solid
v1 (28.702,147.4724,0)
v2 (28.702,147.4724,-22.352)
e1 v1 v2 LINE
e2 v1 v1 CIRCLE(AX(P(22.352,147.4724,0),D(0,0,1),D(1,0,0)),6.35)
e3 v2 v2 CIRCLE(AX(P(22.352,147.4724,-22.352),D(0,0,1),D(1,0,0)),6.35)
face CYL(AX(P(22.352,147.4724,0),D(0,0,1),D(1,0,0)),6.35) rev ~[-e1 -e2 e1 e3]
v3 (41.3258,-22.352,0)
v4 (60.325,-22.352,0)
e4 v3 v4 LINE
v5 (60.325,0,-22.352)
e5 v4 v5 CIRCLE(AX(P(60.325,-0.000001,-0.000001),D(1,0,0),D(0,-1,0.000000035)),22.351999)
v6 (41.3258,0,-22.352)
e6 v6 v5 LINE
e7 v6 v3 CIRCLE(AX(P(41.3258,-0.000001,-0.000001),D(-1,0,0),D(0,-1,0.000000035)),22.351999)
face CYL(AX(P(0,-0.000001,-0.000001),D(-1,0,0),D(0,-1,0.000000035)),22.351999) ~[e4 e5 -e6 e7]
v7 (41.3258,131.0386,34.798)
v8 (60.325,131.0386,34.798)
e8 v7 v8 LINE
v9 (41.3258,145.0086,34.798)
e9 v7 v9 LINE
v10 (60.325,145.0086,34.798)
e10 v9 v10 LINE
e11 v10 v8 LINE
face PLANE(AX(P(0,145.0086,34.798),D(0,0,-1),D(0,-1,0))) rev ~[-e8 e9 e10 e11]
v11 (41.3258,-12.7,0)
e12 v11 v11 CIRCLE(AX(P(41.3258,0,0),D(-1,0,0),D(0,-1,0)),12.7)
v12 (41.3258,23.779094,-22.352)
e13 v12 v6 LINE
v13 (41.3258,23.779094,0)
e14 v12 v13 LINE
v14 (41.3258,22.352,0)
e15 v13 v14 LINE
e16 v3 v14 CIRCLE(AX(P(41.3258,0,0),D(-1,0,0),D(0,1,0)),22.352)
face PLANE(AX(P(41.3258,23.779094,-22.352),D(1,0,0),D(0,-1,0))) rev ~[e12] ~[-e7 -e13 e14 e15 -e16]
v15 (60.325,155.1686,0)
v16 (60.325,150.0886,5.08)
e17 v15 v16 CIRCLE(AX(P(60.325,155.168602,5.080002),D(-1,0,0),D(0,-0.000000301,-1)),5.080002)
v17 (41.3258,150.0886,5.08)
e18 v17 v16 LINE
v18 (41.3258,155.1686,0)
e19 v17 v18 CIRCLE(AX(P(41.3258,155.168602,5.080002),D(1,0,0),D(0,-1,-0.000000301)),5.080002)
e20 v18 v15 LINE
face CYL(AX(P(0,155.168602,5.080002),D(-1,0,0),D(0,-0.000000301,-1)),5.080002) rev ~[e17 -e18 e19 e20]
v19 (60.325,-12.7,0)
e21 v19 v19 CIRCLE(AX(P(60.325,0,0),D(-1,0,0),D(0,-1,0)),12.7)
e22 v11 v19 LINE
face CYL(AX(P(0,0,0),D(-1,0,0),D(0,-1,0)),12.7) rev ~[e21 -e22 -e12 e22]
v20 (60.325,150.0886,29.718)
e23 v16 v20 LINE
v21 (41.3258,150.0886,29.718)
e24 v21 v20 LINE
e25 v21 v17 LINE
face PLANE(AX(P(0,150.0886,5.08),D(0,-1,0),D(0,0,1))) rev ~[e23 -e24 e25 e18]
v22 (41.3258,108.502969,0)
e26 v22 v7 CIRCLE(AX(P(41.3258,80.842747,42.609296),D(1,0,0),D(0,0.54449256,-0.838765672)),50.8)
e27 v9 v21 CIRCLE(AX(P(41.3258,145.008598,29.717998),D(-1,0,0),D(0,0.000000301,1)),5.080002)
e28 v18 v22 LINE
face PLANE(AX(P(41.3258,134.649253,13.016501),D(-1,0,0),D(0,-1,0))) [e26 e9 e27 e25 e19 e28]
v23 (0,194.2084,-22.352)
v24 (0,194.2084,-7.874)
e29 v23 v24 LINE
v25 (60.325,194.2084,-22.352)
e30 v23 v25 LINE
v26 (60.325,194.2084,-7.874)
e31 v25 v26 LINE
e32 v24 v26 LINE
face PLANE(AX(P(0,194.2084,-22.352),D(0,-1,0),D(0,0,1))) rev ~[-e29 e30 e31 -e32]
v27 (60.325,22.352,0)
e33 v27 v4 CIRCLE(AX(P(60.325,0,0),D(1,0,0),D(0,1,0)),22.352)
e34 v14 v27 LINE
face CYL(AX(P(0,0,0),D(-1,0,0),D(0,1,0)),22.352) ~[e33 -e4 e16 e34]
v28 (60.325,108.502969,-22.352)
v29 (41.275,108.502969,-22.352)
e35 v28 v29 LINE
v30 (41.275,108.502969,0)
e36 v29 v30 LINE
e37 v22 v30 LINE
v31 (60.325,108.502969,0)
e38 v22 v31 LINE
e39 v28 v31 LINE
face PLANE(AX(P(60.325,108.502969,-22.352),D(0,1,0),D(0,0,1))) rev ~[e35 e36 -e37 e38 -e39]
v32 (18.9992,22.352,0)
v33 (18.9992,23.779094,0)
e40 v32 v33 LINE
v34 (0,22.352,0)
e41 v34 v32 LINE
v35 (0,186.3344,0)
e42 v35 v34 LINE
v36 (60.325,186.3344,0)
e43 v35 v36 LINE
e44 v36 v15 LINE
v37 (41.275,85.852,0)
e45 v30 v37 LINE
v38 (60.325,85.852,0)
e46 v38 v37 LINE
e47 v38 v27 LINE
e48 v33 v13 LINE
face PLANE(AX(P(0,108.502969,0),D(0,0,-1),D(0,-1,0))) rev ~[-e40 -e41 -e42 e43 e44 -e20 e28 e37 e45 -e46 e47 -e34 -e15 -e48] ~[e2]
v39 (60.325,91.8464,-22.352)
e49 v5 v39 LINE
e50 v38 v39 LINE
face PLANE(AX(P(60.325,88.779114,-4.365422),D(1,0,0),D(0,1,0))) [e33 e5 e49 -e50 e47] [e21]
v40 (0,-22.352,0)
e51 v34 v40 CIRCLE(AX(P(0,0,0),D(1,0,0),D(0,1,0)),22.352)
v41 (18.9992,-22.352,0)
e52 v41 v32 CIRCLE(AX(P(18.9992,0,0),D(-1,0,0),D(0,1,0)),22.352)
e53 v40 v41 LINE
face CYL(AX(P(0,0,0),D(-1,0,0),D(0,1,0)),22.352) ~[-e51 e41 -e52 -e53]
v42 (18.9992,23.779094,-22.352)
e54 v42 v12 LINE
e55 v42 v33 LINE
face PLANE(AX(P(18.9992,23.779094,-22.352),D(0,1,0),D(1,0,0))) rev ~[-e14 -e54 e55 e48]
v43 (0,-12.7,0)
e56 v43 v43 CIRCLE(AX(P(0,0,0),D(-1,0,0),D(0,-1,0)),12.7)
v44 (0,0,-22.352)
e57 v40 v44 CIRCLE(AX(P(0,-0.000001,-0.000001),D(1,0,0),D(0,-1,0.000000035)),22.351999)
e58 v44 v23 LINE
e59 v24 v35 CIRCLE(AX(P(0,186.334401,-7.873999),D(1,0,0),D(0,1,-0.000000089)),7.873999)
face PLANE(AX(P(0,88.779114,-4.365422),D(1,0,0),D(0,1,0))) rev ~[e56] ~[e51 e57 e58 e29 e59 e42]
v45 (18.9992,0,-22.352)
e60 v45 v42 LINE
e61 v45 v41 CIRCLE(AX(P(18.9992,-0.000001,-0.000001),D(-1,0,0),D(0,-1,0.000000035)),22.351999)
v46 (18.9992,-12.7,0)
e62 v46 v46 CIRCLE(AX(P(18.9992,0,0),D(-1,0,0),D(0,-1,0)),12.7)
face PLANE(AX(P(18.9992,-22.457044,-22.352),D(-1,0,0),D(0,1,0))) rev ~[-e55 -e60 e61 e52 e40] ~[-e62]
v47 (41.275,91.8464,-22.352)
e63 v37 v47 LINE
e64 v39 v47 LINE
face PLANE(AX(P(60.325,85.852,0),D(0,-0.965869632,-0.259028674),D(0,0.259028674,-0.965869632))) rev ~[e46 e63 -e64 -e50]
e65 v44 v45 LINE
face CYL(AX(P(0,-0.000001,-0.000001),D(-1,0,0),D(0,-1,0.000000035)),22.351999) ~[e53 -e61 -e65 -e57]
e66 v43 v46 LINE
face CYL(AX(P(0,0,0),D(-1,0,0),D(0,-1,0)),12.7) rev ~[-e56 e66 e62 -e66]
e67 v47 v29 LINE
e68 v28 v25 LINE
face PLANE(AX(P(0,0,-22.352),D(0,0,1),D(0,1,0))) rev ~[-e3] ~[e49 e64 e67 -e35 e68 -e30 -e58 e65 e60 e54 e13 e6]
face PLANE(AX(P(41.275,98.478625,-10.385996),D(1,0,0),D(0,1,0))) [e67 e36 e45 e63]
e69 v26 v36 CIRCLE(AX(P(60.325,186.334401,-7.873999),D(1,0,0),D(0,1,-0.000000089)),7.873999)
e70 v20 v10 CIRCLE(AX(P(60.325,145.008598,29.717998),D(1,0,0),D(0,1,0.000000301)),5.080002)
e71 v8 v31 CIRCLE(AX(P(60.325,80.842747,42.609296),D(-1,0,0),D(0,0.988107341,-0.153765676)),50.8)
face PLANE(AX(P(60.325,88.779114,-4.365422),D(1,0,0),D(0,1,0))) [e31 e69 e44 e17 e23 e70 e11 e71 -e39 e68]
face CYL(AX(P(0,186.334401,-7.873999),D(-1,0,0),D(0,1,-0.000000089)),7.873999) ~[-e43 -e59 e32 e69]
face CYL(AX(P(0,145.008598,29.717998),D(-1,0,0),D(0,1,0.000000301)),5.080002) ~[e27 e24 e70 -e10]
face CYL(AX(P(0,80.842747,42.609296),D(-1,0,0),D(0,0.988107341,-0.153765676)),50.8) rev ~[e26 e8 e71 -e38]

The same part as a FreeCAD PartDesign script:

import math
import FreeCAD as App
import Part
import Sketcher
Q = App.Units.Quantity


def add_polygon(sketch, points):
    """Adds a closed chain of lines whose ends are joined by coincident constraints."""
    first, n = sketch.GeometryCount, len(points)
    for a, b in zip(points, points[1:] + points[:1]):
        sketch.addGeometry(Part.LineSegment(App.Vector(*a, 0), App.Vector(*b, 0)), False)
    for i in range(n):
        sketch.addConstraint(Sketcher.Constraint("Coincident", first + i, 2, first + (i + 1) % n, 1))

doc = App.newDocument("Part")
body = doc.addObject("PartDesign::Body", "Body")

sketch1 = body.newObject("Sketcher::SketchObject", "Sketch")
sketch1.AttachmentSupport = (doc.getObject("YZ_Plane"), [""])
sketch1.MapMode = "FlatFace"
sketch1.addGeometry([
    Part.LineSegment(App.Vector(109, 0, 0), App.Vector(22, 0, 0)),
    Part.ArcOfCircle(Part.Circle(App.Vector(0, 0, 0), App.Vector(0, 0, 1), 22), math.radians(0), math.radians(180)),
    Part.ArcOfCircle(Part.Circle(App.Vector(0, 0, 0), App.Vector(0, 0, 1), 22), math.radians(180), math.radians(270)),
    Part.LineSegment(App.Vector(0, -22, 0), App.Vector(194, -22, 0)),
    Part.LineSegment(App.Vector(194, -22, 0), App.Vector(194, -8, 0)),
    Part.ArcOfCircle(Part.Circle(App.Vector(186, -8, 0), App.Vector(0, 0, 1), 8), math.radians(0), math.radians(90)),
    Part.LineSegment(App.Vector(186, 0, 0), App.Vector(155, 0, 0)),
    Part.ArcOfCircle(Part.Circle(App.Vector(155, 5, 0), App.Vector(0, 0, 1), 5), math.radians(-180), math.radians(-90)),
    Part.LineSegment(App.Vector(150, 5, 0), App.Vector(150, 30, 0)),
    Part.ArcOfCircle(Part.Circle(App.Vector(145, 30, 0), App.Vector(0, 0, 1), 5), math.radians(0), math.radians(90)),
    Part.LineSegment(App.Vector(145, 35, 0), App.Vector(131, 35, 0)),
    Part.ArcOfCircle(Part.Circle(App.Vector(81, 43, 0), App.Vector(0, 0, 1), 51), math.radians(-57), math.radians(-9)),
], False)
sketch1.addConstraint([
    Sketcher.Constraint("Coincident", 0, 2, 1, 1),
    Sketcher.Constraint("Tangent", 1, 2, 2, 1),
    Sketcher.Constraint("Tangent", 2, 2, 3, 1),
    Sketcher.Constraint("Coincident", 3, 2, 4, 1),
    Sketcher.Constraint("Tangent", 4, 2, 5, 1),
    Sketcher.Constraint("Tangent", 5, 2, 6, 1),
    Sketcher.Constraint("Tangent", 6, 2, 7, 2),
    Sketcher.Constraint("Tangent", 7, 1, 8, 1),
    Sketcher.Constraint("Tangent", 8, 2, 9, 1),
    Sketcher.Constraint("Tangent", 9, 2, 10, 1),
    Sketcher.Constraint("Coincident", 10, 2, 11, 2),
    Sketcher.Constraint("Coincident", 11, 1, 0, 1),
    Sketcher.Constraint("Horizontal", 0),
    Sketcher.Constraint("Horizontal", 3),
    Sketcher.Constraint("Vertical", 4),
    Sketcher.Constraint("Horizontal", 6),
    Sketcher.Constraint("Vertical", 8),
    Sketcher.Constraint("Horizontal", 10),
    Sketcher.Constraint("Coincident", 1, 3, -1, 1),
    Sketcher.Constraint("Equal", 1, 2),
    Sketcher.Constraint("Equal", 7, 9),
    Sketcher.Constraint("PointOnObject", 0, 2, -1),
    Sketcher.Constraint("PointOnObject", 1, 2, -1),
    Sketcher.Constraint("PointOnObject", 5, 2, -1),
    Sketcher.Constraint("Radius", 11, Q("2 in")),
    Sketcher.Constraint("Radius", 7, Q("0.2000001 in")),
    Sketcher.Constraint("Radius", 1, Q("0.88 in")),
    Sketcher.Constraint("Radius", 5, Q("0.31 in")),
    Sketcher.Constraint("DistanceX", 10, 2, 10, 1, Q("0.55 in")),
    Sketcher.Constraint("DistanceY", 8, 1, 8, 2, Q("0.97 in")),
    Sketcher.Constraint("DistanceX", 3, 1, 3, 2, Q("7.646 in")),
    Sketcher.Constraint("DistanceX", 6, 2, 6, 1, Q("1.227 in")),
    Sketcher.Constraint("DistanceX", 0, 2, 0, 1, 86.150969),
])
pad1 = body.newObject("PartDesign::Pad", "Pad")
pad1.Profile = sketch1
pad1.Length = Q("2.375 in")

sketch2 = body.newObject("Sketcher::SketchObject", "Sketch001")
sketch2.AttachmentSupport = (doc.getObject("YZ_Plane"), [""])
sketch2.MapMode = "FlatFace"
sketch2.addGeometry([
    Part.ArcOfCircle(Part.Circle(App.Vector(155, 5, 0), App.Vector(0, 0, 1), 5), math.radians(-180), math.radians(-90)),
    Part.LineSegment(App.Vector(155, 0, 0), App.Vector(109, 0, 0)),
    Part.ArcOfCircle(Part.Circle(App.Vector(81, 43, 0), App.Vector(0, 0, 1), 51), math.radians(-57), math.radians(-9)),
    Part.LineSegment(App.Vector(131, 35, 0), App.Vector(145, 35, 0)),
    Part.ArcOfCircle(Part.Circle(App.Vector(145, 30, 0), App.Vector(0, 0, 1), 5), math.radians(0), math.radians(90)),
    Part.LineSegment(App.Vector(150, 30, 0), App.Vector(150, 5, 0)),
], False)
sketch2.addConstraint([
    Sketcher.Constraint("Tangent", 0, 2, 1, 1),
    Sketcher.Constraint("Coincident", 1, 2, 2, 1),
    Sketcher.Constraint("Coincident", 2, 2, 3, 1),
    Sketcher.Constraint("Tangent", 3, 2, 4, 2),
    Sketcher.Constraint("Tangent", 4, 1, 5, 1),
    Sketcher.Constraint("Tangent", 5, 2, 0, 1),
    Sketcher.Constraint("Horizontal", 1),
    Sketcher.Constraint("Horizontal", 3),
    Sketcher.Constraint("Vertical", 5),
    Sketcher.Constraint("Equal", 0, 4),
    Sketcher.Constraint("PointOnObject", 0, 2, -1),
    Sketcher.Constraint("Radius", 2, Q("2 in")),
    Sketcher.Constraint("Radius", 0, Q("0.2000001 in")),
    Sketcher.Constraint("DistanceX", 3, 1, 3, 2, Q("0.55 in")),
    Sketcher.Constraint("DistanceY", 5, 2, 5, 1, Q("0.97 in")),
    Sketcher.Constraint("DistanceX", -1, 1, 0, 3, Q("6.1090001 in")),
    Sketcher.Constraint("DistanceX", 1, 2, 1, 1, 46.665631),
])
pocket1 = body.newObject("PartDesign::Pocket", "Pocket")
pocket1.Profile = sketch2
pocket1.Length = Q("1.627 in")
pocket1.Reversed = True

sketch3 = body.newObject("Sketcher::SketchObject", "Sketch002")
sketch3.AttachmentSupport = (doc.getObject("YZ_Plane"), [""])
sketch3.MapMode = "FlatFace"
sketch3.AttachmentOffset = App.Placement(App.Vector(0, 0, 2.375 * 25.4), App.Rotation())
add_polygon(sketch3, [(109, -22), (109, 0), (86, 0), (92, -22)])
sketch3.addConstraint([
    Sketcher.Constraint("Vertical", 0),
    Sketcher.Constraint("Horizontal", 1),
    Sketcher.Constraint("Horizontal", 3),
    Sketcher.Constraint("PointOnObject", 0, 2, -1),
    Sketcher.Constraint("DistanceY", 0, 1, 0, 2, Q("0.88 in")),
    Sketcher.Constraint("DistanceX", -1, 1, 1, 2, Q("3.38 in")),
    Sketcher.Constraint("DistanceX", -1, 1, 2, 2, Q("3.616 in")),
    Sketcher.Constraint("DistanceX", 1, 2, 1, 1, 22.650969),
])
pocket2 = body.newObject("PartDesign::Pocket", "Pocket001")
pocket2.Profile = sketch3
pocket2.Length = Q("0.75 in")

sketch4 = body.newObject("Sketcher::SketchObject", "Sketch003")
sketch4.AttachmentSupport = (doc.getObject("XY_Plane"), [""])
sketch4.MapMode = "FlatFace"
sketch4.addGeometry(Part.Circle(App.Vector(22, 147, 0), App.Vector(0, 0, 1), 6), False)
sketch4.addConstraint([
    Sketcher.Constraint("Diameter", 0, Q("0.5 in")),
    Sketcher.Constraint("DistanceX", -1, 1, 0, 3, Q("0.88 in")),
    Sketcher.Constraint("DistanceY", -1, 1, 0, 3, Q("5.806 in")),
])
pocket3 = body.newObject("PartDesign::Pocket", "Pocket002")
pocket3.Profile = sketch4
pocket3.Type = "ThroughAll"

sketch5 = body.newObject("Sketcher::SketchObject", "Sketch004")
sketch5.AttachmentSupport = (doc.getObject("YZ_Plane"), [""])
sketch5.MapMode = "FlatFace"
sketch5.addGeometry(Part.Circle(App.Vector(0, 0, 0), App.Vector(0, 0, 1), 13), False)
sketch5.addConstraint([
    Sketcher.Constraint("Coincident", 0, 3, -1, 1),
    Sketcher.Constraint("Diameter", 0, Q("1 in")),
])
pocket4 = body.newObject("PartDesign::Pocket", "Pocket003")
pocket4.Profile = sketch5
pocket4.Type = "ThroughAll"
pocket4.Reversed = True

sketch6 = body.newObject("Sketcher::SketchObject", "Sketch005")
sketch6.AttachmentSupport = (doc.getObject("XY_Plane"), [""])
sketch6.MapMode = "FlatFace"
sketch6.AttachmentOffset = App.Placement(App.Vector(0, 0, -0.88 * 25.4), App.Rotation())
add_polygon(sketch6, [(19, 24), (41, 24), (41, -22), (19, -22)])
sketch6.addConstraint([
    Sketcher.Constraint("Horizontal", 0),
    Sketcher.Constraint("Vertical", 1),
    Sketcher.Constraint("Horizontal", 2),
    Sketcher.Constraint("Vertical", 3),
    Sketcher.Constraint("DistanceX", 0, 1, 0, 2, Q("0.879 in")),
    Sketcher.Constraint("DistanceX", -1, 1, 0, 2, Q("1.627 in")),
    Sketcher.Constraint("DistanceY", 1, 2, 1, 1, 46.236138),
    Sketcher.Constraint("DistanceY", -1, 1, 0, 2, 23.779094),
])
pocket5 = body.newObject("PartDesign::Pocket", "Pocket004")
pocket5.Profile = sketch6
pocket5.Type = "ThroughAll"
pocket5.Reversed = True

doc.recompute()
